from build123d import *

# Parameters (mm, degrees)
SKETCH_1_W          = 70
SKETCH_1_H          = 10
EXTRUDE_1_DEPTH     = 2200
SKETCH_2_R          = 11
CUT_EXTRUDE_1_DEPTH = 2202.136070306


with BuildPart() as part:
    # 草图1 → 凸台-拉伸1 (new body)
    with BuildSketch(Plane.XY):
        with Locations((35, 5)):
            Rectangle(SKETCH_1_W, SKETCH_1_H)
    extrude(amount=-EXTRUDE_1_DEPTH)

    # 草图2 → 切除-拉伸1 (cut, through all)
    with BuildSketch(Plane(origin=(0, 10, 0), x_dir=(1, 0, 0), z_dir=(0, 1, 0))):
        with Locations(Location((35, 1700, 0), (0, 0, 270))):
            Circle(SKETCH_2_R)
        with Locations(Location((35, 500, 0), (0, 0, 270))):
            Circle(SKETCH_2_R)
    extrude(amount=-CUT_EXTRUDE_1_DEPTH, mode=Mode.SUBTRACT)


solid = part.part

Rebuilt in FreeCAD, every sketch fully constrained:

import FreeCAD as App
import Part
import Sketcher


def add_polygon(sketch, points):
    """Adds a closed chain of lines whose ends are joined by coincident constraints."""
    first, n = sketch.GeometryCount, len(points)
    for a, b in zip(points, points[1:] + points[:1]):
        sketch.addGeometry(Part.LineSegment(App.Vector(*a, 0), App.Vector(*b, 0)), False)
    for i in range(n):
        sketch.addConstraint(Sketcher.Constraint("Coincident", first + i, 2, first + (i + 1) % n, 1))

doc = App.newDocument("Part")
body = doc.addObject("PartDesign::Body", "Body")

sketch1 = body.newObject("Sketcher::SketchObject", "Sketch")
sketch1.AttachmentSupport = (doc.getObject("XY_Plane"), [""])
sketch1.MapMode = "FlatFace"
add_polygon(sketch1, [(0, 10), (0, 0), (70, 0), (70, 10)])
sketch1.addConstraint([
    Sketcher.Constraint("Vertical", 0),
    Sketcher.Constraint("Horizontal", 1),
    Sketcher.Constraint("Vertical", 2),
    Sketcher.Constraint("Horizontal", 3),
    Sketcher.Constraint("Coincident", 0, 2, -1, 1),
    Sketcher.Constraint("DistanceX", 1, 1, 1, 2, 70.0),
    Sketcher.Constraint("DistanceY", 0, 2, 0, 1, 10.0),
])
pad1 = body.newObject("PartDesign::Pad", "Pad")
pad1.Profile = sketch1
pad1.Length = 2200
pad1.Reversed = True

sketch2 = body.newObject("Sketcher::SketchObject", "Sketch001")
sketch2.AttachmentSupport = (doc.getObject("XZ_Plane"), [""])
sketch2.MapMode = "FlatFace"
sketch2.AttachmentOffset = App.Placement(App.Vector(0, 0, -10), App.Rotation())
sketch2.addGeometry([
    Part.Circle(App.Vector(35, -1700, 0), App.Vector(0, 0, 1), 11),
    Part.Circle(App.Vector(35, -500, 0), App.Vector(0, 0, 1), 11),
], False)
sketch2.addConstraint([
    Sketcher.Constraint("Equal", 0, 1),
    Sketcher.Constraint("Vertical", 0, 3, 1, 3),
    Sketcher.Constraint("Diameter", 0, 22.0),
    Sketcher.Constraint("DistanceX", -1, 1, 0, 3, 35.0),
    Sketcher.Constraint("DistanceY", 0, 3, -1, 1, 1700.0),
    Sketcher.Constraint("DistanceY", 1, 3, -1, 1, 500.0),
])
pocket1 = body.newObject("PartDesign::Pocket", "Pocket")
pocket1.Profile = sketch2
pocket1.Type = "ThroughAll"
pocket1.Reversed = True

doc.recompute()
